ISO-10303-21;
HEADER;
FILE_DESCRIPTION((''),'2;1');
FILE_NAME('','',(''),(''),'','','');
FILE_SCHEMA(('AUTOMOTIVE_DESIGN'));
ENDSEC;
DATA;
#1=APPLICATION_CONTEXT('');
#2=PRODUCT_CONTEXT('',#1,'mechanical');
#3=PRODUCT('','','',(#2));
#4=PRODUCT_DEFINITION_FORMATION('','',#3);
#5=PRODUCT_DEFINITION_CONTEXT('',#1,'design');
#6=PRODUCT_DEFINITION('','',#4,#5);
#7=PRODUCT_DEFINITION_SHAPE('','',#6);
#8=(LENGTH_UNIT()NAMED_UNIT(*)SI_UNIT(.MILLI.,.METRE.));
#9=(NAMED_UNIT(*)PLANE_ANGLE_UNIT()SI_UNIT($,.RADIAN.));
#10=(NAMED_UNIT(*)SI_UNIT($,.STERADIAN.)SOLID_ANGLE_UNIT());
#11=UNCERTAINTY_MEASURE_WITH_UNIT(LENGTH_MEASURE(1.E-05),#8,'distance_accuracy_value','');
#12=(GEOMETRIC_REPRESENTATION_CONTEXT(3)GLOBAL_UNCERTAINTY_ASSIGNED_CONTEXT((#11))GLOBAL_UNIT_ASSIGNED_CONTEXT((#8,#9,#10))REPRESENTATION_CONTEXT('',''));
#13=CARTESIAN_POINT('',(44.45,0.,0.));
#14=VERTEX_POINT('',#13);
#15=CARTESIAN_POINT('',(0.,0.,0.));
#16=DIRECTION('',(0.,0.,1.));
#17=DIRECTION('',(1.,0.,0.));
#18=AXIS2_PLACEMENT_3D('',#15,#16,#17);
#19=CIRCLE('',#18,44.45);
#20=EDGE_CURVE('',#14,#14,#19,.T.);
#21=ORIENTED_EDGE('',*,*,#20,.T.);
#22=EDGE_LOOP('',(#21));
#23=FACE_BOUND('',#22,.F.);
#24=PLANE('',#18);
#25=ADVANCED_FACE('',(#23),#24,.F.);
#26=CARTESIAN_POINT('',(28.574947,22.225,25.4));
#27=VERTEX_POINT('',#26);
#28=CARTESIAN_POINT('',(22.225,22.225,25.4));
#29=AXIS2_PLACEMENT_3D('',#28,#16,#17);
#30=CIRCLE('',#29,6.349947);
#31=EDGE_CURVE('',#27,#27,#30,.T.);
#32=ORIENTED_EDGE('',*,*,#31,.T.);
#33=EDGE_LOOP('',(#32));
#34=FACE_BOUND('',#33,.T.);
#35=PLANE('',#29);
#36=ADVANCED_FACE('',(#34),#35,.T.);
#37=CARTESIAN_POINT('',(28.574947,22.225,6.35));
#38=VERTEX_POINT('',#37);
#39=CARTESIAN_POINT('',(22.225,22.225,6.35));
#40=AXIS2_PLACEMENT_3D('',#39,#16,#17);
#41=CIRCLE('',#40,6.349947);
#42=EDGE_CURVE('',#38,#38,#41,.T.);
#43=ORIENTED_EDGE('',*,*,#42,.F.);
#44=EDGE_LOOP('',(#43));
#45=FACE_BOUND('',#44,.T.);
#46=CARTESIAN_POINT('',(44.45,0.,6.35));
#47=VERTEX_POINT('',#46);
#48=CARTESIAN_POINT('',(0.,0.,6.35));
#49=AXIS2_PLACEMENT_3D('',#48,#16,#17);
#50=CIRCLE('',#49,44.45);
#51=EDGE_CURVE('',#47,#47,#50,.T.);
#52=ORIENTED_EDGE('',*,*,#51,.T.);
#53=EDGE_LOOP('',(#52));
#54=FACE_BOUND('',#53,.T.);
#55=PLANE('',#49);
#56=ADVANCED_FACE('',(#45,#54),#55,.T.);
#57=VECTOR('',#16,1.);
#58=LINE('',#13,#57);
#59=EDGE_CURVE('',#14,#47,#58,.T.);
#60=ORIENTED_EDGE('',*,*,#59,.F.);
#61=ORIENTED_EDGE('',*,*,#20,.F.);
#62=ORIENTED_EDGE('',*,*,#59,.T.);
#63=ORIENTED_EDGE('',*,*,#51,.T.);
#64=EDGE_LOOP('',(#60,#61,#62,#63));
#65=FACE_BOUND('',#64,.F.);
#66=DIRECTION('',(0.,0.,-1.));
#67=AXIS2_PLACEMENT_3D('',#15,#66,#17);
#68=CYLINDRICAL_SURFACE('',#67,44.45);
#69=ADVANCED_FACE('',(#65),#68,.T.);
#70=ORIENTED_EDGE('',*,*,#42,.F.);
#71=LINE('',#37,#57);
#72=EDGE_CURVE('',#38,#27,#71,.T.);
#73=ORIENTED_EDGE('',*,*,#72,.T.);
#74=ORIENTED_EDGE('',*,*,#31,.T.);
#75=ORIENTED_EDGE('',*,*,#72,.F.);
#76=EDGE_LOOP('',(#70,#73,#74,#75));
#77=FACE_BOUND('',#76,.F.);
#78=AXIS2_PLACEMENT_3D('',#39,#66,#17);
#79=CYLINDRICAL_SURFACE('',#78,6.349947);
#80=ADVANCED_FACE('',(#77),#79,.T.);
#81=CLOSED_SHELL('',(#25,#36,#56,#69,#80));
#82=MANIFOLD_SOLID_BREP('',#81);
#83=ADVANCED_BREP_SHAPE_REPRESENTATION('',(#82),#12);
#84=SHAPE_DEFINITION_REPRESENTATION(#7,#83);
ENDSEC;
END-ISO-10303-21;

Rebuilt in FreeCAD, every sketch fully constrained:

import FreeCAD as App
import Part
import Sketcher
Q = App.Units.Quantity

doc = App.newDocument("Part")
body = doc.addObject("PartDesign::Body", "Body")

sketch1 = body.newObject("Sketcher::SketchObject", "Sketch")
sketch1.AttachmentSupport = (doc.getObject("XY_Plane"), [""])
sketch1.MapMode = "FlatFace"
sketch1.addGeometry(Part.Circle(App.Vector(0, 0, 0), App.Vector(0, 0, 1), 44.45), False)
sketch1.addConstraint([
    Sketcher.Constraint("Coincident", 0, 3, -1, 1),
    Sketcher.Constraint("Diameter", 0, Q("3.5 in")),
])
pad1 = body.newObject("PartDesign::Pad", "Pad")
pad1.Profile = sketch1
pad1.Length = Q("0.25 in")

sketch2 = body.newObject("Sketcher::SketchObject", "Sketch001")
sketch2.AttachmentSupport = (doc.getObject("XY_Plane"), [""])
sketch2.MapMode = "FlatFace"
sketch2.AttachmentOffset = App.Placement(App.Vector(0, 0, 0.25 * 25.4), App.Rotation())
sketch2.addGeometry(Part.Circle(App.Vector(22.225, 22.225, 0), App.Vector(0, 0, 1), 6.349947), False)
sketch2.addConstraint([
    Sketcher.Constraint("DistanceX", -1, 1, 0, 3, Q("0.875 in")),
    Sketcher.Constraint("DistanceY", -1, 1, 0, 3, Q("0.875 in")),
    Sketcher.Constraint("Diameter", 0, 12.699894),
])
pad2 = body.newObject("PartDesign::Pad", "Pad001")
pad2.Profile = sketch2
pad2.Length = Q("0.75 in")

doc.recompute()
